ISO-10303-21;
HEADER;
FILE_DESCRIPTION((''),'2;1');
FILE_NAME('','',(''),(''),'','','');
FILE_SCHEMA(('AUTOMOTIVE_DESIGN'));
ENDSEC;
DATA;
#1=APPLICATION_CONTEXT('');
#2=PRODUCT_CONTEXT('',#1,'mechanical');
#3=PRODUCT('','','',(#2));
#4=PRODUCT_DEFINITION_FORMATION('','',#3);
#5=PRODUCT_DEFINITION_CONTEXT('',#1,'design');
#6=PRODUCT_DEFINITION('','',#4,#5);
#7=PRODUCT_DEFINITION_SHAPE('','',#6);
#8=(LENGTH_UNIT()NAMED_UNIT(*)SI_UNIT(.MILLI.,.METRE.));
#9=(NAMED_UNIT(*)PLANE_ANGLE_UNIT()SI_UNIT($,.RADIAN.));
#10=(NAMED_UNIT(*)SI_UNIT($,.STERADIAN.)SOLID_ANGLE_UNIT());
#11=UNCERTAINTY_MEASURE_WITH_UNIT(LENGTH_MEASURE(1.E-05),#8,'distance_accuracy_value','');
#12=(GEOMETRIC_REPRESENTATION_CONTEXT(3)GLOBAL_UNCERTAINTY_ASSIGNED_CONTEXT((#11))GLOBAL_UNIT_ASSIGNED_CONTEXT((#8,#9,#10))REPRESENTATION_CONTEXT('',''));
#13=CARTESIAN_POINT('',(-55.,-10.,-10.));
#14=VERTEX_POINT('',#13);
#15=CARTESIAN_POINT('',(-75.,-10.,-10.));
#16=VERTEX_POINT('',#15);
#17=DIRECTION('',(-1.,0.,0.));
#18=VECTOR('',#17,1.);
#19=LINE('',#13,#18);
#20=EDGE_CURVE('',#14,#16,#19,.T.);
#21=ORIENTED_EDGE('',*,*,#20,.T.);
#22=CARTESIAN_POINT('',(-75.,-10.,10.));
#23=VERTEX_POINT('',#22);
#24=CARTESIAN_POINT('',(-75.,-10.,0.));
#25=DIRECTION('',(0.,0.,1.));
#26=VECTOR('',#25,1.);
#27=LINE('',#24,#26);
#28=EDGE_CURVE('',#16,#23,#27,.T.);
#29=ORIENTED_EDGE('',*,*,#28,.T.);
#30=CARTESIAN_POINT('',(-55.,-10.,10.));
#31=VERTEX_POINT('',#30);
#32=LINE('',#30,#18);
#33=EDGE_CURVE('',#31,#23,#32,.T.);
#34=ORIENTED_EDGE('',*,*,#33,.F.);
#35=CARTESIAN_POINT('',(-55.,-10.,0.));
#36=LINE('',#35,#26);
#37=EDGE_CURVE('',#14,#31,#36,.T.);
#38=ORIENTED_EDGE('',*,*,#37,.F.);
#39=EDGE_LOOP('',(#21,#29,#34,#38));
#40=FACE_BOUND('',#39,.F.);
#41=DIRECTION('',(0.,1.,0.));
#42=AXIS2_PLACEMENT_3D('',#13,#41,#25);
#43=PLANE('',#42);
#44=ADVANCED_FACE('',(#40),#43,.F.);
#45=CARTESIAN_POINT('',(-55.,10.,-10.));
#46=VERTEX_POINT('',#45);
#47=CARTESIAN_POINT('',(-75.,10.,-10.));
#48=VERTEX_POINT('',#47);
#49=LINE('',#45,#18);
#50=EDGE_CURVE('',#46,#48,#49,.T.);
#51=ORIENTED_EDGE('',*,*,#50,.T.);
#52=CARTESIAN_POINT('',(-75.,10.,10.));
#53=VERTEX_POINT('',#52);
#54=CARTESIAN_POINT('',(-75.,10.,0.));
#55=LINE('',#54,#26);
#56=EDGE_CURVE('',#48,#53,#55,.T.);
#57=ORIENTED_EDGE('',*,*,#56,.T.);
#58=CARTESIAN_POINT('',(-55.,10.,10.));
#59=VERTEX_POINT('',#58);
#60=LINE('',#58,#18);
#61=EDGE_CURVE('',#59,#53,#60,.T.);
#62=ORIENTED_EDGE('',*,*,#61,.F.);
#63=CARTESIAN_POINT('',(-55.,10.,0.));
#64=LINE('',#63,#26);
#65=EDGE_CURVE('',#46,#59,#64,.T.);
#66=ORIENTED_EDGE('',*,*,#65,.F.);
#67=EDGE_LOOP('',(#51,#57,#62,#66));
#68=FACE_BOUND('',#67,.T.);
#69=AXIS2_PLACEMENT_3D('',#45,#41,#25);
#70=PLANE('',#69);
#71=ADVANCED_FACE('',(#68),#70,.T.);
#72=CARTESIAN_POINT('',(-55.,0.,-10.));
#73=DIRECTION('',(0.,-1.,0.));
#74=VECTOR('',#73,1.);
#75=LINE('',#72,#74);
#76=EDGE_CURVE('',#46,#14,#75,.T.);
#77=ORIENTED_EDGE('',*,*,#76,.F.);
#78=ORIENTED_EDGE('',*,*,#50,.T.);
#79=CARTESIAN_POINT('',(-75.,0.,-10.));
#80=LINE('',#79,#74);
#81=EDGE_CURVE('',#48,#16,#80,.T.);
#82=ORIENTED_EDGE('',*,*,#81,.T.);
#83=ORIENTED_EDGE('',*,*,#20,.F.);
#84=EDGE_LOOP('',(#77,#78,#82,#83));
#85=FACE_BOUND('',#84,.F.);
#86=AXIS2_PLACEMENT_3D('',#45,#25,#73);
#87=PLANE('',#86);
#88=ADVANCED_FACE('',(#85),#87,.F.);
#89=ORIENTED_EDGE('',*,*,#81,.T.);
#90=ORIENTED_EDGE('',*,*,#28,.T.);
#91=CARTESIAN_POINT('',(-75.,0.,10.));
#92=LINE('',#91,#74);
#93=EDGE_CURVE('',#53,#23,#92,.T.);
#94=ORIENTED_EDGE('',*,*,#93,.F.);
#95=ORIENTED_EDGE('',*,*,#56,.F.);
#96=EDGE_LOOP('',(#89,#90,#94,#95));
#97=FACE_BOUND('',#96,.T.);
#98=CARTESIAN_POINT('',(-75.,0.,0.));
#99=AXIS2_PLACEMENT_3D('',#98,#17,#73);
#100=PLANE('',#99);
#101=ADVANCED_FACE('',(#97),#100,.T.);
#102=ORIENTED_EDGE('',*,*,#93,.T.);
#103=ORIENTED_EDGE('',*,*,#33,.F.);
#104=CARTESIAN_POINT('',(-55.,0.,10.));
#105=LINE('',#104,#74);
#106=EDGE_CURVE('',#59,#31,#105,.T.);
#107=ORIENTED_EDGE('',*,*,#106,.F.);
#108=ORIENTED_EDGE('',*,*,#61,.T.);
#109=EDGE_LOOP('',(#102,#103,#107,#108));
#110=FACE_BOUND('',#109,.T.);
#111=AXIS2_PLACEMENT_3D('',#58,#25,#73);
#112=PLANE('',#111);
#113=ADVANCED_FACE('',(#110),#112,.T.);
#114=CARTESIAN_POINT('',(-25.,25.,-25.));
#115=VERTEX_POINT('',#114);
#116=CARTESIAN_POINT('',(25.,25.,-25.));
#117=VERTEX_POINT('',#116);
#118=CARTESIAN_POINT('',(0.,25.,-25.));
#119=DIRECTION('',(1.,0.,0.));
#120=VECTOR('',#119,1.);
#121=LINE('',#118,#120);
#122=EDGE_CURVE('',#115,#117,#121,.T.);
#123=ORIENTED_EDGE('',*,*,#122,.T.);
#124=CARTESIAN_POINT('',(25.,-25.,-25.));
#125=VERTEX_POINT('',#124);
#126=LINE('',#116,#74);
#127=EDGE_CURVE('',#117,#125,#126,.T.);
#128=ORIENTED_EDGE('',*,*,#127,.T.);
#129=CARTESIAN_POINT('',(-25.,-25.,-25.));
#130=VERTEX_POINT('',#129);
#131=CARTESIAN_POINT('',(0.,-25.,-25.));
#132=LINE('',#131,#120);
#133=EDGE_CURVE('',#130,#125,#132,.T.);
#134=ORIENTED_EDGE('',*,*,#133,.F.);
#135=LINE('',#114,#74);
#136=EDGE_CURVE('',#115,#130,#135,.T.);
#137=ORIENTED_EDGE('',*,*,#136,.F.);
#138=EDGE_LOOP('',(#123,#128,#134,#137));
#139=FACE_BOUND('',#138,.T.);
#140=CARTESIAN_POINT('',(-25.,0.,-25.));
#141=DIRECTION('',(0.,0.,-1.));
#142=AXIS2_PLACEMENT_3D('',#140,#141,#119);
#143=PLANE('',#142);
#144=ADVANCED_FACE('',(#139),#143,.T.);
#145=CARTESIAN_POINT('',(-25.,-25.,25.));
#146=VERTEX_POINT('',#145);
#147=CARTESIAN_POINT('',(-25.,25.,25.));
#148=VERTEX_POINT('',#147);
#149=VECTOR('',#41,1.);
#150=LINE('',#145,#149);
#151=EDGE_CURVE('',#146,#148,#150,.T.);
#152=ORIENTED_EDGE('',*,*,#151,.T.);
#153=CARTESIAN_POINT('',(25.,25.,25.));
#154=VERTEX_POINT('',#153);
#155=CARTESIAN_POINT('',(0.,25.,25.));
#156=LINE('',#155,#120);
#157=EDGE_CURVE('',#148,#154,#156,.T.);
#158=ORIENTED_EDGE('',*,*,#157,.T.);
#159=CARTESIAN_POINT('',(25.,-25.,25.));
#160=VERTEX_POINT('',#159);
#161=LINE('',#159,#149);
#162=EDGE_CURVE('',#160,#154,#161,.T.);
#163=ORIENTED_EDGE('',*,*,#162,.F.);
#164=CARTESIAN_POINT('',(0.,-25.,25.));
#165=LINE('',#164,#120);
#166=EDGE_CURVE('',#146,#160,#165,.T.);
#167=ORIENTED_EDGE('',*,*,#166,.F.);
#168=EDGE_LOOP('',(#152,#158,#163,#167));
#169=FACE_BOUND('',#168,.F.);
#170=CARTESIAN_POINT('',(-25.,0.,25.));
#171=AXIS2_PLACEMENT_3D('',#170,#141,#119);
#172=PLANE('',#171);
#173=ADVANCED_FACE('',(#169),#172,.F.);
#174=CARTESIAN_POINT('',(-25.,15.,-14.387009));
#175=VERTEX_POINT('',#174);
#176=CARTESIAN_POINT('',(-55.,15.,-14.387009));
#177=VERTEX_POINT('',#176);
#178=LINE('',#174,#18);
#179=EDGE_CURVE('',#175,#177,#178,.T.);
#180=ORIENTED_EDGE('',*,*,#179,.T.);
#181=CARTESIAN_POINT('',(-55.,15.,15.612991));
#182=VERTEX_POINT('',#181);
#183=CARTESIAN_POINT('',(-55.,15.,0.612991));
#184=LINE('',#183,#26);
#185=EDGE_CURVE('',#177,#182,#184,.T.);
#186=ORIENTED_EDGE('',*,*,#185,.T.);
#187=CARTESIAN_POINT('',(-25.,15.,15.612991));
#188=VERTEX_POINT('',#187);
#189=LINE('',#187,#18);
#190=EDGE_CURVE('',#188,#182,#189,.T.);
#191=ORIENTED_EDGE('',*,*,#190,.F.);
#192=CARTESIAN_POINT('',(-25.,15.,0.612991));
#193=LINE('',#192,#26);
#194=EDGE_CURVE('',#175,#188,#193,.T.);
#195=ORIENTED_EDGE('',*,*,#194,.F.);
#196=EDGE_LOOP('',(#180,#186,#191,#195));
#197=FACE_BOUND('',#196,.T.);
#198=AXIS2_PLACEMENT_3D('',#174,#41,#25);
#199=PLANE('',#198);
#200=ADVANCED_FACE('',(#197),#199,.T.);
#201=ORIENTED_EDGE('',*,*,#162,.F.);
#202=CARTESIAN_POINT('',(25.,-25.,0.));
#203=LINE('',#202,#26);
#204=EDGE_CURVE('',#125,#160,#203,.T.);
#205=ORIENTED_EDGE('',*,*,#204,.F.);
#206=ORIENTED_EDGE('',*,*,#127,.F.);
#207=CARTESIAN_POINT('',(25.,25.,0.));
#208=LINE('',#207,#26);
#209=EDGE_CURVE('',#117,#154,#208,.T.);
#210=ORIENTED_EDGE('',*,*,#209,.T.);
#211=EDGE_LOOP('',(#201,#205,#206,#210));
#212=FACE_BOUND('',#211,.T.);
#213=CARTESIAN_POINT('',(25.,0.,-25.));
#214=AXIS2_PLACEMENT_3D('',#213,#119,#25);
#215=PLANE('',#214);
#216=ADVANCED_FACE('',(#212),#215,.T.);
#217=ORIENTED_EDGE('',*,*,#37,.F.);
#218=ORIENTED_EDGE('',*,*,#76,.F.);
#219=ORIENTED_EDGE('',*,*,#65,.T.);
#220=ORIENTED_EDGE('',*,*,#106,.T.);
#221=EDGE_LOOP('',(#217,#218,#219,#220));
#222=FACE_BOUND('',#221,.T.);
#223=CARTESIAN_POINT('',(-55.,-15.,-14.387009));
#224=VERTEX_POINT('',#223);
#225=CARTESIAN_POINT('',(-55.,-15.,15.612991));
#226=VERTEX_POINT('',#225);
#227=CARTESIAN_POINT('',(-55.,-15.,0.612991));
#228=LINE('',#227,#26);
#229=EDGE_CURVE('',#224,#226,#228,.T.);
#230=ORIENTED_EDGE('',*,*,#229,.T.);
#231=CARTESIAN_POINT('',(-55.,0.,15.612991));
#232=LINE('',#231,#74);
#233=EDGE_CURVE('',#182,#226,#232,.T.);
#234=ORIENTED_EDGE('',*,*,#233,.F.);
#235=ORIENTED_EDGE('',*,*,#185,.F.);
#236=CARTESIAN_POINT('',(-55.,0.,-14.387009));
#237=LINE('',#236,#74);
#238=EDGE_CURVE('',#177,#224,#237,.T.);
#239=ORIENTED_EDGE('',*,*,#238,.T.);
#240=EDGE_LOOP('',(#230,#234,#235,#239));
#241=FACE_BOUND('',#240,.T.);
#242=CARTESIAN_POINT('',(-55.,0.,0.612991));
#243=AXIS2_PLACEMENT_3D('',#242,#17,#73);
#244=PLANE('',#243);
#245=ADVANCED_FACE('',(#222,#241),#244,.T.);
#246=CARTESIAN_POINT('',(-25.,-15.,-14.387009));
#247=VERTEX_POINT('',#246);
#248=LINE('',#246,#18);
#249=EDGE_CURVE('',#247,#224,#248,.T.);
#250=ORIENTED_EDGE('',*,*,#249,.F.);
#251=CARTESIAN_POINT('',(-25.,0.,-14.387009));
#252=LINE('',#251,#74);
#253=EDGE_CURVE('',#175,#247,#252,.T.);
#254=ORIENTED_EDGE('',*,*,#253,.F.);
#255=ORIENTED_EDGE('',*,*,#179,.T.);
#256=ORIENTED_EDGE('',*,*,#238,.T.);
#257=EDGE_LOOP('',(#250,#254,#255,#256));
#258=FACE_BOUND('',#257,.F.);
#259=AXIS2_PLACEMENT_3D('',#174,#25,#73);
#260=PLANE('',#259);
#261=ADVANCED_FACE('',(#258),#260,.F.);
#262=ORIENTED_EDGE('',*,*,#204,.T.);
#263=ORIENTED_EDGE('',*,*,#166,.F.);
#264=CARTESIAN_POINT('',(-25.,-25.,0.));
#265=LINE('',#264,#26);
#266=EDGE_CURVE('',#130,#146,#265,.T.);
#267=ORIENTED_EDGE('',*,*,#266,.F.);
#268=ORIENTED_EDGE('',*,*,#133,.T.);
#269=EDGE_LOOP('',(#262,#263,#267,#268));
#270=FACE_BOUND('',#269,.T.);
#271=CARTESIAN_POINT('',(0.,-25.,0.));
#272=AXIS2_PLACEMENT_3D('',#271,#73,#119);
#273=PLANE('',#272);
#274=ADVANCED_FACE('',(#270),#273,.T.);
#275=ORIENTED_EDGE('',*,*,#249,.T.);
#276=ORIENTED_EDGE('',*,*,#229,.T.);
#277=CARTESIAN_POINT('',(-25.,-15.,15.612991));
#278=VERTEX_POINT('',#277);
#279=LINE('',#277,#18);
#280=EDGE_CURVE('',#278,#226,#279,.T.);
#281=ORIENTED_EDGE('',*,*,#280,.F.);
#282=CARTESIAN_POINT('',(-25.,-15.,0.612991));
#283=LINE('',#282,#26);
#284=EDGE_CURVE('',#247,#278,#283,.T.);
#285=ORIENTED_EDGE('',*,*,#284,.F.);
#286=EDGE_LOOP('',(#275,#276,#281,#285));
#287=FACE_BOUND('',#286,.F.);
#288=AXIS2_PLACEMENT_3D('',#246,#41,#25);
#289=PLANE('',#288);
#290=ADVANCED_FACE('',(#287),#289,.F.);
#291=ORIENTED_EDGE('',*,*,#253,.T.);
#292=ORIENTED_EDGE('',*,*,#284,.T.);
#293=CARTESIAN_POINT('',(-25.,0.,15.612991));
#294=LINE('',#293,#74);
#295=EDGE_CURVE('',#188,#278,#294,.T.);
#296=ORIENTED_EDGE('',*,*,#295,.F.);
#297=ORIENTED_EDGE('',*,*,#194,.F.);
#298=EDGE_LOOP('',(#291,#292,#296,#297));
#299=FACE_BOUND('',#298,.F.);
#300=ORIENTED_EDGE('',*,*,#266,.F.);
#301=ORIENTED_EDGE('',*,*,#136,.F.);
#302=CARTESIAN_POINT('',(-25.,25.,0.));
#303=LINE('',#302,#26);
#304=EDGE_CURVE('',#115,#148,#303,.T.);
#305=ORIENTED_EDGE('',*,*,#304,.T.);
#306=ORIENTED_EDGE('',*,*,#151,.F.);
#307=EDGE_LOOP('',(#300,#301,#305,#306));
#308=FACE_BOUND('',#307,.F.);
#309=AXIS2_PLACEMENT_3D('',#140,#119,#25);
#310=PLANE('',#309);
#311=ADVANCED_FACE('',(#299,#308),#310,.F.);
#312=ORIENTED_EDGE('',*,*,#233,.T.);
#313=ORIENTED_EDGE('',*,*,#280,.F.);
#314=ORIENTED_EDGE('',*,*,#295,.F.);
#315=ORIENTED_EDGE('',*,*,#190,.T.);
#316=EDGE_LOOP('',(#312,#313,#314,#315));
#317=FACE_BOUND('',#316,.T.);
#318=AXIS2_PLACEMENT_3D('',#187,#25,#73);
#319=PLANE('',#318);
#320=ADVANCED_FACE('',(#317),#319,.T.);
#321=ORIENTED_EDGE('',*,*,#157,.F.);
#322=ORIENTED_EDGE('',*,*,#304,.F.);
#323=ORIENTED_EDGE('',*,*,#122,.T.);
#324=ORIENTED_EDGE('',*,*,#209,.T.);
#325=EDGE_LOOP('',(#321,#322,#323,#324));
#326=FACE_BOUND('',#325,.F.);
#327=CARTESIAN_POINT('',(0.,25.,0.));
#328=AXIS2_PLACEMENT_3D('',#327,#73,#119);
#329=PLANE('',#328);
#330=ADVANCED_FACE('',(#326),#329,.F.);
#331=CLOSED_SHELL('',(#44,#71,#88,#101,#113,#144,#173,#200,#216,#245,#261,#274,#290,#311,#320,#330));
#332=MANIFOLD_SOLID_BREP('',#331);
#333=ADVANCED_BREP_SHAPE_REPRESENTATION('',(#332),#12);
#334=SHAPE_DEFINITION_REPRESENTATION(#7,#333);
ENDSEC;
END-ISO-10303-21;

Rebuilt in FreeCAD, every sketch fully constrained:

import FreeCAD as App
import Part
import Sketcher
from FreeCAD import Vector
Q = App.Units.Quantity

doc = App.newDocument("Part")
body = doc.addObject("PartDesign::Body", "Body")

# Sketch on XZ plane
sketch1 = body.newObject("Sketcher::SketchObject", "Sketch")
sketch1.AttachmentSupport = (doc.getObject("XZ_Plane"), [""])
sketch1.MapMode = "FlatFace"
sketch1.addGeometry([
    Part.LineSegment(Vector(-25, 25, 0), Vector(-25, -25, 0)),
    Part.LineSegment(Vector(-25, -25, 0), Vector(25, -25, 0)),
    Part.LineSegment(Vector(25, -25, 0), Vector(25, 25, 0)),
    Part.LineSegment(Vector(25, 25, 0), Vector(-25, 25, 0)),
], False)
sketch1.addConstraint([
    Sketcher.Constraint("Coincident", 0, 2, 1, 1),
    Sketcher.Constraint("Coincident", 1, 2, 2, 1),
    Sketcher.Constraint("Coincident", 2, 2, 3, 1),
    Sketcher.Constraint("Coincident", 3, 2, 0, 1),
    Sketcher.Constraint("Vertical", 0),
    Sketcher.Constraint("Horizontal", 1),
    Sketcher.Constraint("Vertical", 2),
    Sketcher.Constraint("Horizontal", 3),
    Sketcher.Constraint("Symmetric", 0, 2, 2, 2, -1, 1),
    Sketcher.Constraint("Equal", 3, 0),
    Sketcher.Constraint("DistanceX", 1, 1, 1, 2, Q("50 mm")),
])
pad1 = body.newObject("PartDesign::Pad", "Pad")
pad1.Profile = sketch1
pad1.Length = 50
pad1.Midplane = True

# Sketch on YZ plane
sketch2 = body.newObject("Sketcher::SketchObject", "Sketch001")
sketch2.AttachmentSupport = (doc.getObject("YZ_Plane"), [""])
sketch2.MapMode = "FlatFace"
sketch2.AttachmentOffset = App.Placement(Vector(0, 0, -25), App.Rotation())
sketch2.addGeometry([
    Part.LineSegment(Vector(15, 15.612991, 0), Vector(15, -14.387009, 0)),
    Part.LineSegment(Vector(15, -14.387009, 0), Vector(-15, -14.387009, 0)),
    Part.LineSegment(Vector(-15, -14.387009, 0), Vector(-15, 15.612991, 0)),
    Part.LineSegment(Vector(-15, 15.612991, 0), Vector(15, 15.612991, 0)),
], False)
sketch2.addConstraint([
    Sketcher.Constraint("Coincident", 0, 2, 1, 1),
    Sketcher.Constraint("Coincident", 1, 2, 2, 1),
    Sketcher.Constraint("Coincident", 2, 2, 3, 1),
    Sketcher.Constraint("Coincident", 3, 2, 0, 1),
    Sketcher.Constraint("Vertical", 0),
    Sketcher.Constraint("Horizontal", 1),
    Sketcher.Constraint("Vertical", 2),
    Sketcher.Constraint("Horizontal", 3),
    Sketcher.Constraint("Equal", 3, 0),
    Sketcher.Constraint("DistanceX", 1, 2, 1, 1, Q("30 mm")),
    Sketcher.Constraint("DistanceX", -1, 1, 0, 2, Q("15 mm")),
    Sketcher.Constraint("DistanceY", 0, 2, -1, 1, Q("14.387009 mm")),
])
pad2 = body.newObject("PartDesign::Pad", "Pad001")
pad2.Profile = sketch2
pad2.Length = 30
pad2.Reversed = True

# Sketch on YZ plane
sketch3 = body.newObject("Sketcher::SketchObject", "Sketch002")
sketch3.AttachmentSupport = (doc.getObject("YZ_Plane"), [""])
sketch3.MapMode = "FlatFace"
sketch3.AttachmentOffset = App.Placement(Vector(0, 0, -55), App.Rotation())
sketch3.addGeometry([
    Part.LineSegment(Vector(10, 10, 0), Vector(10, -10, 0)),
    Part.LineSegment(Vector(10, -10, 0), Vector(-10, -10, 0)),
    Part.LineSegment(Vector(-10, -10, 0), Vector(-10, 10, 0)),
    Part.LineSegment(Vector(-10, 10, 0), Vector(10, 10, 0)),
], False)
sketch3.addConstraint([
    Sketcher.Constraint("Coincident", 0, 2, 1, 1),
    Sketcher.Constraint("Coincident", 1, 2, 2, 1),
    Sketcher.Constraint("Coincident", 2, 2, 3, 1),
    Sketcher.Constraint("Coincident", 3, 2, 0, 1),
    Sketcher.Constraint("Vertical", 0),
    Sketcher.Constraint("Horizontal", 1),
    Sketcher.Constraint("Vertical", 2),
    Sketcher.Constraint("Horizontal", 3),
    Sketcher.Constraint("Symmetric", 0, 2, 2, 2, -1, 1),
    Sketcher.Constraint("Equal", 3, 0),
    Sketcher.Constraint("DistanceX", 1, 2, 1, 1, Q("20 mm")),
])
pad3 = body.newObject("PartDesign::Pad", "Pad002")
pad3.Profile = sketch3
pad3.Length = 20
pad3.Reversed = True

doc.recompute()
